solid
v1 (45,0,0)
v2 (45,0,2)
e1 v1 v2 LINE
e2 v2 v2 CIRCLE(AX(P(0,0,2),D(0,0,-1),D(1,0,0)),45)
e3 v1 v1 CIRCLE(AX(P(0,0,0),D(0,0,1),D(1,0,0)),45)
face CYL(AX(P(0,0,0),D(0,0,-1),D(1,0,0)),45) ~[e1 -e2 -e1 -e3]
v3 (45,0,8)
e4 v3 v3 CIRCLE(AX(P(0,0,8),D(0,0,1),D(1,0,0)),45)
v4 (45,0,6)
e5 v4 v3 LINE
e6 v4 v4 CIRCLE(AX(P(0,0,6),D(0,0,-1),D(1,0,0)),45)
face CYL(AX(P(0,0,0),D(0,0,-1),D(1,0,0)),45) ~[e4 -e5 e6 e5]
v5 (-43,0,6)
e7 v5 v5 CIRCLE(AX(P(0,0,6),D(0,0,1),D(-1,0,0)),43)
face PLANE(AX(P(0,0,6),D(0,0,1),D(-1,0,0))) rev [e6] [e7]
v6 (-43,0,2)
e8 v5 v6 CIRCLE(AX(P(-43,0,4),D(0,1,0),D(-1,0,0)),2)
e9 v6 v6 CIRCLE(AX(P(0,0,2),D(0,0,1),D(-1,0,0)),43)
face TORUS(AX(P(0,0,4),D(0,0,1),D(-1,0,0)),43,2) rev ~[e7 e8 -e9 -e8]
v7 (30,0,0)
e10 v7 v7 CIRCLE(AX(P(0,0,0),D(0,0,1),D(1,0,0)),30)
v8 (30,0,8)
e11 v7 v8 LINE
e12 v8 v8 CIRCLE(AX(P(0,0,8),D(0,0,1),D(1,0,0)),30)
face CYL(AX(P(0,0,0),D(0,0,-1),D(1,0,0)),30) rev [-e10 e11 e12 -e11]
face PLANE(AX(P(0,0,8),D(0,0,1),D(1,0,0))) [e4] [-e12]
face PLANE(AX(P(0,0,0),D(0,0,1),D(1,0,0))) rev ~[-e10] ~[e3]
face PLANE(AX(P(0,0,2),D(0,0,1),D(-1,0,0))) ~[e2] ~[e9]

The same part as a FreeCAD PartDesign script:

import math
import FreeCAD as App
import Part
import Sketcher

V = App.Vector

doc = App.newDocument("Part")
body = doc.addObject("PartDesign::Body", "Body")

# Sketch on XY plane
sketch1 = body.newObject("Sketcher::SketchObject", "Sketch")
sketch1.AttachmentSupport = (doc.getObject("XY_Plane"), [""])
sketch1.MapMode = "FlatFace"
sketch1.addGeometry([
    Part.Circle(V(0, 0, 0), V(0, 0, 1), 45),
    Part.Circle(V(0, 0, 0), V(0, 0, 1), 30),
], False)
sketch1.addConstraint([
    Sketcher.Constraint("Coincident", 0, 3, -1, 1),
    Sketcher.Constraint("Coincident", 1, 3, -1, 1),
    Sketcher.Constraint("Diameter", 0, 90.0),
    Sketcher.Constraint("Diameter", 1, 60.0),
])
pad1 = body.newObject("PartDesign::Pad", "Pad")
pad1.Profile = sketch1
pad1.Length = 8

# Sketch on XZ plane
sketch2 = body.newObject("Sketcher::SketchObject", "Sketch001")
sketch2.AttachmentSupport = (doc.getObject("XZ_Plane"), [""])
sketch2.MapMode = "FlatFace"
sketch2.addGeometry([
    Part.LineSegment(V(-43, 2, 0), V(-45, 2, 0)),
    Part.LineSegment(V(-45, 2, 0), V(-45, 6, 0)),
    Part.LineSegment(V(-45, 6, 0), V(-43, 6, 0)),
    Part.ArcOfCircle(Part.Circle(V(-43, 4, 0), V(0, 0, 1), 2), math.radians(-90), math.radians(90)),
], False)
sketch2.addConstraint([
    Sketcher.Constraint("Coincident", 0, 2, 1, 1),
    Sketcher.Constraint("Coincident", 1, 2, 2, 1),
    Sketcher.Constraint("Tangent", 2, 2, 3, 2),
    Sketcher.Constraint("Tangent", 3, 1, 0, 1),
    Sketcher.Constraint("Horizontal", 0),
    Sketcher.Constraint("Vertical", 1),
    Sketcher.Constraint("Horizontal", 2),
    Sketcher.Constraint("Radius", 3, 2.0),
    Sketcher.Constraint("DistanceX", 0, 2, 0, 1, 2.0),
    Sketcher.Constraint("DistanceY", -1, 1, 3, 3, 4.0),
    Sketcher.Constraint("DistanceX", 3, 3, -1, 1, 43.0),
])
groove = body.newObject("PartDesign::Groove", "Groove")
groove.Profile = sketch2
groove.ReferenceAxis = (sketch2, ["V_Axis"])
groove.Angle = 360

doc.recompute()
